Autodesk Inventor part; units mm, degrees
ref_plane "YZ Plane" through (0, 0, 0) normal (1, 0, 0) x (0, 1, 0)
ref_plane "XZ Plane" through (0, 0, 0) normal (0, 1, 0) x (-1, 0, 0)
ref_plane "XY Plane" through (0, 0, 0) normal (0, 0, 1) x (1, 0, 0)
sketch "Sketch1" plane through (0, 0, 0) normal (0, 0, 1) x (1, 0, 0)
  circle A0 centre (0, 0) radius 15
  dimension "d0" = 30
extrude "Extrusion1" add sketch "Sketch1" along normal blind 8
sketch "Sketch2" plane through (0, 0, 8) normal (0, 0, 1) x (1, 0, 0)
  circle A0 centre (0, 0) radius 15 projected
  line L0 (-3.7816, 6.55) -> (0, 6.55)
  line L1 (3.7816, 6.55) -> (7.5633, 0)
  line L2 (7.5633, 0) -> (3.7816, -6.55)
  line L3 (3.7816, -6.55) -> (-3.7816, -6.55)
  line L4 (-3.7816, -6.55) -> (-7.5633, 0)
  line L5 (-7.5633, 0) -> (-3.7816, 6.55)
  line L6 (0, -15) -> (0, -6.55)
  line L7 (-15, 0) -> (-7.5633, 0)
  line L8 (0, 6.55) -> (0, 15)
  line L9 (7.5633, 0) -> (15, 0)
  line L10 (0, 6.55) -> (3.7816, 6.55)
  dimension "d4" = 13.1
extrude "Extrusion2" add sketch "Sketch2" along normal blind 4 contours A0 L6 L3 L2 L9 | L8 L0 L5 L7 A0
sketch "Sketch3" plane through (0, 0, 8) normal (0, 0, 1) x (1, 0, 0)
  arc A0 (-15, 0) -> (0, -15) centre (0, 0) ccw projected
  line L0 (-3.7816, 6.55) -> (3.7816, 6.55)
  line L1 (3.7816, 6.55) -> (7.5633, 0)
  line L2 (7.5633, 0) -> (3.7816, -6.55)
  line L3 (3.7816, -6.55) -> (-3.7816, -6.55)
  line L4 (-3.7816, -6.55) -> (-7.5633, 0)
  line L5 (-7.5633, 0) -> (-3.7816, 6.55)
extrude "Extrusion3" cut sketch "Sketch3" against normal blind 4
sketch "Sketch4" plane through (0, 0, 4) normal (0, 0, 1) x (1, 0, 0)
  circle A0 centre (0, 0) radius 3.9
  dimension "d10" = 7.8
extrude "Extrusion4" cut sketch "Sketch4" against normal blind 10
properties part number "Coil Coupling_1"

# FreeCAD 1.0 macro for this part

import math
import FreeCAD as App
import Part
import Sketcher
from FreeCAD import Vector
Q = App.Units.Quantity


def add_polygon(sketch, points):
    """Adds a closed chain of lines whose ends are joined by coincident constraints."""
    first, n = sketch.GeometryCount, len(points)
    for a, b in zip(points, points[1:] + points[:1]):
        sketch.addGeometry(Part.LineSegment(App.Vector(*a, 0), App.Vector(*b, 0)), False)
    for i in range(n):
        sketch.addConstraint(Sketcher.Constraint("Coincident", first + i, 2, first + (i + 1) % n, 1))

doc = App.newDocument("Part")
body = doc.addObject("PartDesign::Body", "Body")

# Sketch on XY plane
sketch1 = body.newObject("Sketcher::SketchObject", "Sketch")
sketch1.AttachmentSupport = (doc.getObject("XY_Plane"), [""])
sketch1.MapMode = "FlatFace"
sketch1.addGeometry(Part.Circle(Vector(0, 0, 0), Vector(0, 0, 1), 15), False)
sketch1.addConstraint(Sketcher.Constraint("Coincident", 0, 3, -1, 1))
sketch1.addConstraint(Sketcher.Constraint("Diameter", 0, 30.0))
pad1 = body.newObject("PartDesign::Pad", "Pad")
pad1.Profile = sketch1
pad1.Length = 8

# Sketch on XY plane
sketch2 = body.newObject("Sketcher::SketchObject", "Sketch001")
sketch2.AttachmentSupport = (doc.getObject("XY_Plane"), [""])
sketch2.MapMode = "FlatFace"
sketch2.AttachmentOffset = App.Placement(Vector(0, 0, 8), App.Rotation())
sketch2.addGeometry(Part.ArcOfCircle(Part.Circle(Vector(0, 0, 0), Vector(0, 0, 1), 15), math.radians(-90), math.radians(0)), False)
sketch2.addGeometry(Part.LineSegment(Vector(15, 0, 0), Vector(7.6, 0, 0)), False)
sketch2.addGeometry(Part.LineSegment(Vector(7.6, 0, 0), Vector(3.8, -6.5, 0)), False)
sketch2.addGeometry(Part.LineSegment(Vector(3.8, -6.5, 0), Vector(0, -6.5, 0)), False)
sketch2.addGeometry(Part.LineSegment(Vector(0, -6.5, 0), Vector(0, -15, 0)), False)
sketch2.addGeometry(Part.LineSegment(Vector(0, 6.5, 0), Vector(0, 15, 0)), False)
sketch2.addGeometry(Part.ArcOfCircle(Part.Circle(Vector(0, 0, 0), Vector(0, 0, 1), 15), math.radians(90), math.radians(180)), False)
sketch2.addGeometry(Part.LineSegment(Vector(-15, 0, 0), Vector(-7.6, 0, 0)), False)
sketch2.addGeometry(Part.LineSegment(Vector(-7.6, 0, 0), Vector(-3.8, 6.5, 0)), False)
sketch2.addGeometry(Part.LineSegment(Vector(-3.8, 6.5, 0), Vector(0, 6.5, 0)), False)
sketch2.addConstraint(Sketcher.Constraint("Coincident", 0, 2, 1, 1))
sketch2.addConstraint(Sketcher.Constraint("Coincident", 1, 2, 2, 1))
sketch2.addConstraint(Sketcher.Constraint("Coincident", 2, 2, 3, 1))
sketch2.addConstraint(Sketcher.Constraint("Coincident", 3, 2, 4, 1))
sketch2.addConstraint(Sketcher.Constraint("Coincident", 4, 2, 0, 1))
sketch2.addConstraint(Sketcher.Constraint("Coincident", 5, 2, 6, 1))
sketch2.addConstraint(Sketcher.Constraint("Coincident", 6, 2, 7, 1))
sketch2.addConstraint(Sketcher.Constraint("Coincident", 7, 2, 8, 1))
sketch2.addConstraint(Sketcher.Constraint("Coincident", 8, 2, 9, 1))
sketch2.addConstraint(Sketcher.Constraint("Coincident", 9, 2, 5, 1))
sketch2.addConstraint(Sketcher.Constraint("Horizontal", 1))
sketch2.addConstraint(Sketcher.Constraint("Horizontal", 3))
sketch2.addConstraint(Sketcher.Constraint("Vertical", 4))
sketch2.addConstraint(Sketcher.Constraint("Vertical", 5))
sketch2.addConstraint(Sketcher.Constraint("Horizontal", 7))
sketch2.addConstraint(Sketcher.Constraint("Horizontal", 9))
sketch2.addConstraint(Sketcher.Constraint("Coincident", 0, 3, -1, 1))
sketch2.addConstraint(Sketcher.Constraint("Coincident", 6, 3, -1, 1))
sketch2.addConstraint(Sketcher.Constraint("Equal", 0, 6))
sketch2.addConstraint(Sketcher.Constraint("Symmetric", 1, 2, 7, 2, -1, 1))
sketch2.addConstraint(Sketcher.Constraint("Symmetric", 2, 2, 8, 2, -1, 1))
sketch2.addConstraint(Sketcher.Constraint("PointOnObject", 0, 2, -1))
sketch2.addConstraint(Sketcher.Constraint("PointOnObject", 3, 2, -2))
sketch2.addConstraint(Sketcher.Constraint("PointOnObject", 5, 2, -2))
sketch2.addConstraint(Sketcher.Constraint("Radius", 0, 15.0))
sketch2.addConstraint(Sketcher.Constraint("Angle", 2, Q("-120.0004 deg")))
sketch2.addConstraint(Sketcher.Constraint("DistanceY", 4, 2, 4, 1, 8.45))
sketch2.addConstraint(Sketcher.Constraint("DistanceX", 1, 2, 1, 1, 7.4367))
pad2 = body.newObject("PartDesign::Pad", "Pad001")
pad2.Profile = sketch2
pad2.Length = 4

# Sketch on XY plane
sketch3 = body.newObject("Sketcher::SketchObject", "Sketch002")
sketch3.AttachmentSupport = (doc.getObject("XY_Plane"), [""])
sketch3.MapMode = "FlatFace"
sketch3.AttachmentOffset = App.Placement(Vector(0, 0, 8), App.Rotation())
add_polygon(sketch3, [(4, 7), (-4, 7), (-8, 0), (-4, -7), (4, -7), (8, 0)])  # lines 0-5
sketch3.addConstraint(Sketcher.Constraint("Horizontal", 0))
sketch3.addConstraint(Sketcher.Constraint("Horizontal", 3))
sketch3.addConstraint(Sketcher.Constraint("Symmetric", 0, 2, 3, 2, -1, 1))
sketch3.addConstraint(Sketcher.Constraint("Symmetric", 1, 2, 4, 2, -1, 1))
sketch3.addConstraint(Sketcher.Constraint("PointOnObject", 1, 2, -1))
sketch3.addConstraint(Sketcher.Constraint("Parallel", 2, 5))
sketch3.addConstraint(Sketcher.Constraint("Vertical", 0, 2, 2, 2))
sketch3.addConstraint(Sketcher.Constraint("Angle", 1, Q("-120.0004 deg")))
sketch3.addConstraint(Sketcher.Constraint("DistanceY", 2, 2, 0, 2, 13.1))
sketch3.addConstraint(Sketcher.Constraint("DistanceX", 0, 2, 0, 1, 7.5632))
pocket1 = body.newObject("PartDesign::Pocket", "Pocket")
pocket1.Profile = sketch3
pocket1.Length = 4

# Sketch on XY plane
sketch4 = body.newObject("Sketcher::SketchObject", "Sketch003")
sketch4.AttachmentSupport = (doc.getObject("XY_Plane"), [""])
sketch4.MapMode = "FlatFace"
sketch4.AttachmentOffset = App.Placement(Vector(0, 0, 4), App.Rotation())
sketch4.addGeometry(Part.Circle(Vector(0, 0, 0), Vector(0, 0, 1), 3.9), False)
sketch4.addConstraint(Sketcher.Constraint("Coincident", 0, 3, -1, 1))
sketch4.addConstraint(Sketcher.Constraint("Diameter", 0, 7.8))
pocket2 = body.newObject("PartDesign::Pocket", "Pocket001")
pocket2.Profile = sketch4
pocket2.Length = 10

doc.recompute()
